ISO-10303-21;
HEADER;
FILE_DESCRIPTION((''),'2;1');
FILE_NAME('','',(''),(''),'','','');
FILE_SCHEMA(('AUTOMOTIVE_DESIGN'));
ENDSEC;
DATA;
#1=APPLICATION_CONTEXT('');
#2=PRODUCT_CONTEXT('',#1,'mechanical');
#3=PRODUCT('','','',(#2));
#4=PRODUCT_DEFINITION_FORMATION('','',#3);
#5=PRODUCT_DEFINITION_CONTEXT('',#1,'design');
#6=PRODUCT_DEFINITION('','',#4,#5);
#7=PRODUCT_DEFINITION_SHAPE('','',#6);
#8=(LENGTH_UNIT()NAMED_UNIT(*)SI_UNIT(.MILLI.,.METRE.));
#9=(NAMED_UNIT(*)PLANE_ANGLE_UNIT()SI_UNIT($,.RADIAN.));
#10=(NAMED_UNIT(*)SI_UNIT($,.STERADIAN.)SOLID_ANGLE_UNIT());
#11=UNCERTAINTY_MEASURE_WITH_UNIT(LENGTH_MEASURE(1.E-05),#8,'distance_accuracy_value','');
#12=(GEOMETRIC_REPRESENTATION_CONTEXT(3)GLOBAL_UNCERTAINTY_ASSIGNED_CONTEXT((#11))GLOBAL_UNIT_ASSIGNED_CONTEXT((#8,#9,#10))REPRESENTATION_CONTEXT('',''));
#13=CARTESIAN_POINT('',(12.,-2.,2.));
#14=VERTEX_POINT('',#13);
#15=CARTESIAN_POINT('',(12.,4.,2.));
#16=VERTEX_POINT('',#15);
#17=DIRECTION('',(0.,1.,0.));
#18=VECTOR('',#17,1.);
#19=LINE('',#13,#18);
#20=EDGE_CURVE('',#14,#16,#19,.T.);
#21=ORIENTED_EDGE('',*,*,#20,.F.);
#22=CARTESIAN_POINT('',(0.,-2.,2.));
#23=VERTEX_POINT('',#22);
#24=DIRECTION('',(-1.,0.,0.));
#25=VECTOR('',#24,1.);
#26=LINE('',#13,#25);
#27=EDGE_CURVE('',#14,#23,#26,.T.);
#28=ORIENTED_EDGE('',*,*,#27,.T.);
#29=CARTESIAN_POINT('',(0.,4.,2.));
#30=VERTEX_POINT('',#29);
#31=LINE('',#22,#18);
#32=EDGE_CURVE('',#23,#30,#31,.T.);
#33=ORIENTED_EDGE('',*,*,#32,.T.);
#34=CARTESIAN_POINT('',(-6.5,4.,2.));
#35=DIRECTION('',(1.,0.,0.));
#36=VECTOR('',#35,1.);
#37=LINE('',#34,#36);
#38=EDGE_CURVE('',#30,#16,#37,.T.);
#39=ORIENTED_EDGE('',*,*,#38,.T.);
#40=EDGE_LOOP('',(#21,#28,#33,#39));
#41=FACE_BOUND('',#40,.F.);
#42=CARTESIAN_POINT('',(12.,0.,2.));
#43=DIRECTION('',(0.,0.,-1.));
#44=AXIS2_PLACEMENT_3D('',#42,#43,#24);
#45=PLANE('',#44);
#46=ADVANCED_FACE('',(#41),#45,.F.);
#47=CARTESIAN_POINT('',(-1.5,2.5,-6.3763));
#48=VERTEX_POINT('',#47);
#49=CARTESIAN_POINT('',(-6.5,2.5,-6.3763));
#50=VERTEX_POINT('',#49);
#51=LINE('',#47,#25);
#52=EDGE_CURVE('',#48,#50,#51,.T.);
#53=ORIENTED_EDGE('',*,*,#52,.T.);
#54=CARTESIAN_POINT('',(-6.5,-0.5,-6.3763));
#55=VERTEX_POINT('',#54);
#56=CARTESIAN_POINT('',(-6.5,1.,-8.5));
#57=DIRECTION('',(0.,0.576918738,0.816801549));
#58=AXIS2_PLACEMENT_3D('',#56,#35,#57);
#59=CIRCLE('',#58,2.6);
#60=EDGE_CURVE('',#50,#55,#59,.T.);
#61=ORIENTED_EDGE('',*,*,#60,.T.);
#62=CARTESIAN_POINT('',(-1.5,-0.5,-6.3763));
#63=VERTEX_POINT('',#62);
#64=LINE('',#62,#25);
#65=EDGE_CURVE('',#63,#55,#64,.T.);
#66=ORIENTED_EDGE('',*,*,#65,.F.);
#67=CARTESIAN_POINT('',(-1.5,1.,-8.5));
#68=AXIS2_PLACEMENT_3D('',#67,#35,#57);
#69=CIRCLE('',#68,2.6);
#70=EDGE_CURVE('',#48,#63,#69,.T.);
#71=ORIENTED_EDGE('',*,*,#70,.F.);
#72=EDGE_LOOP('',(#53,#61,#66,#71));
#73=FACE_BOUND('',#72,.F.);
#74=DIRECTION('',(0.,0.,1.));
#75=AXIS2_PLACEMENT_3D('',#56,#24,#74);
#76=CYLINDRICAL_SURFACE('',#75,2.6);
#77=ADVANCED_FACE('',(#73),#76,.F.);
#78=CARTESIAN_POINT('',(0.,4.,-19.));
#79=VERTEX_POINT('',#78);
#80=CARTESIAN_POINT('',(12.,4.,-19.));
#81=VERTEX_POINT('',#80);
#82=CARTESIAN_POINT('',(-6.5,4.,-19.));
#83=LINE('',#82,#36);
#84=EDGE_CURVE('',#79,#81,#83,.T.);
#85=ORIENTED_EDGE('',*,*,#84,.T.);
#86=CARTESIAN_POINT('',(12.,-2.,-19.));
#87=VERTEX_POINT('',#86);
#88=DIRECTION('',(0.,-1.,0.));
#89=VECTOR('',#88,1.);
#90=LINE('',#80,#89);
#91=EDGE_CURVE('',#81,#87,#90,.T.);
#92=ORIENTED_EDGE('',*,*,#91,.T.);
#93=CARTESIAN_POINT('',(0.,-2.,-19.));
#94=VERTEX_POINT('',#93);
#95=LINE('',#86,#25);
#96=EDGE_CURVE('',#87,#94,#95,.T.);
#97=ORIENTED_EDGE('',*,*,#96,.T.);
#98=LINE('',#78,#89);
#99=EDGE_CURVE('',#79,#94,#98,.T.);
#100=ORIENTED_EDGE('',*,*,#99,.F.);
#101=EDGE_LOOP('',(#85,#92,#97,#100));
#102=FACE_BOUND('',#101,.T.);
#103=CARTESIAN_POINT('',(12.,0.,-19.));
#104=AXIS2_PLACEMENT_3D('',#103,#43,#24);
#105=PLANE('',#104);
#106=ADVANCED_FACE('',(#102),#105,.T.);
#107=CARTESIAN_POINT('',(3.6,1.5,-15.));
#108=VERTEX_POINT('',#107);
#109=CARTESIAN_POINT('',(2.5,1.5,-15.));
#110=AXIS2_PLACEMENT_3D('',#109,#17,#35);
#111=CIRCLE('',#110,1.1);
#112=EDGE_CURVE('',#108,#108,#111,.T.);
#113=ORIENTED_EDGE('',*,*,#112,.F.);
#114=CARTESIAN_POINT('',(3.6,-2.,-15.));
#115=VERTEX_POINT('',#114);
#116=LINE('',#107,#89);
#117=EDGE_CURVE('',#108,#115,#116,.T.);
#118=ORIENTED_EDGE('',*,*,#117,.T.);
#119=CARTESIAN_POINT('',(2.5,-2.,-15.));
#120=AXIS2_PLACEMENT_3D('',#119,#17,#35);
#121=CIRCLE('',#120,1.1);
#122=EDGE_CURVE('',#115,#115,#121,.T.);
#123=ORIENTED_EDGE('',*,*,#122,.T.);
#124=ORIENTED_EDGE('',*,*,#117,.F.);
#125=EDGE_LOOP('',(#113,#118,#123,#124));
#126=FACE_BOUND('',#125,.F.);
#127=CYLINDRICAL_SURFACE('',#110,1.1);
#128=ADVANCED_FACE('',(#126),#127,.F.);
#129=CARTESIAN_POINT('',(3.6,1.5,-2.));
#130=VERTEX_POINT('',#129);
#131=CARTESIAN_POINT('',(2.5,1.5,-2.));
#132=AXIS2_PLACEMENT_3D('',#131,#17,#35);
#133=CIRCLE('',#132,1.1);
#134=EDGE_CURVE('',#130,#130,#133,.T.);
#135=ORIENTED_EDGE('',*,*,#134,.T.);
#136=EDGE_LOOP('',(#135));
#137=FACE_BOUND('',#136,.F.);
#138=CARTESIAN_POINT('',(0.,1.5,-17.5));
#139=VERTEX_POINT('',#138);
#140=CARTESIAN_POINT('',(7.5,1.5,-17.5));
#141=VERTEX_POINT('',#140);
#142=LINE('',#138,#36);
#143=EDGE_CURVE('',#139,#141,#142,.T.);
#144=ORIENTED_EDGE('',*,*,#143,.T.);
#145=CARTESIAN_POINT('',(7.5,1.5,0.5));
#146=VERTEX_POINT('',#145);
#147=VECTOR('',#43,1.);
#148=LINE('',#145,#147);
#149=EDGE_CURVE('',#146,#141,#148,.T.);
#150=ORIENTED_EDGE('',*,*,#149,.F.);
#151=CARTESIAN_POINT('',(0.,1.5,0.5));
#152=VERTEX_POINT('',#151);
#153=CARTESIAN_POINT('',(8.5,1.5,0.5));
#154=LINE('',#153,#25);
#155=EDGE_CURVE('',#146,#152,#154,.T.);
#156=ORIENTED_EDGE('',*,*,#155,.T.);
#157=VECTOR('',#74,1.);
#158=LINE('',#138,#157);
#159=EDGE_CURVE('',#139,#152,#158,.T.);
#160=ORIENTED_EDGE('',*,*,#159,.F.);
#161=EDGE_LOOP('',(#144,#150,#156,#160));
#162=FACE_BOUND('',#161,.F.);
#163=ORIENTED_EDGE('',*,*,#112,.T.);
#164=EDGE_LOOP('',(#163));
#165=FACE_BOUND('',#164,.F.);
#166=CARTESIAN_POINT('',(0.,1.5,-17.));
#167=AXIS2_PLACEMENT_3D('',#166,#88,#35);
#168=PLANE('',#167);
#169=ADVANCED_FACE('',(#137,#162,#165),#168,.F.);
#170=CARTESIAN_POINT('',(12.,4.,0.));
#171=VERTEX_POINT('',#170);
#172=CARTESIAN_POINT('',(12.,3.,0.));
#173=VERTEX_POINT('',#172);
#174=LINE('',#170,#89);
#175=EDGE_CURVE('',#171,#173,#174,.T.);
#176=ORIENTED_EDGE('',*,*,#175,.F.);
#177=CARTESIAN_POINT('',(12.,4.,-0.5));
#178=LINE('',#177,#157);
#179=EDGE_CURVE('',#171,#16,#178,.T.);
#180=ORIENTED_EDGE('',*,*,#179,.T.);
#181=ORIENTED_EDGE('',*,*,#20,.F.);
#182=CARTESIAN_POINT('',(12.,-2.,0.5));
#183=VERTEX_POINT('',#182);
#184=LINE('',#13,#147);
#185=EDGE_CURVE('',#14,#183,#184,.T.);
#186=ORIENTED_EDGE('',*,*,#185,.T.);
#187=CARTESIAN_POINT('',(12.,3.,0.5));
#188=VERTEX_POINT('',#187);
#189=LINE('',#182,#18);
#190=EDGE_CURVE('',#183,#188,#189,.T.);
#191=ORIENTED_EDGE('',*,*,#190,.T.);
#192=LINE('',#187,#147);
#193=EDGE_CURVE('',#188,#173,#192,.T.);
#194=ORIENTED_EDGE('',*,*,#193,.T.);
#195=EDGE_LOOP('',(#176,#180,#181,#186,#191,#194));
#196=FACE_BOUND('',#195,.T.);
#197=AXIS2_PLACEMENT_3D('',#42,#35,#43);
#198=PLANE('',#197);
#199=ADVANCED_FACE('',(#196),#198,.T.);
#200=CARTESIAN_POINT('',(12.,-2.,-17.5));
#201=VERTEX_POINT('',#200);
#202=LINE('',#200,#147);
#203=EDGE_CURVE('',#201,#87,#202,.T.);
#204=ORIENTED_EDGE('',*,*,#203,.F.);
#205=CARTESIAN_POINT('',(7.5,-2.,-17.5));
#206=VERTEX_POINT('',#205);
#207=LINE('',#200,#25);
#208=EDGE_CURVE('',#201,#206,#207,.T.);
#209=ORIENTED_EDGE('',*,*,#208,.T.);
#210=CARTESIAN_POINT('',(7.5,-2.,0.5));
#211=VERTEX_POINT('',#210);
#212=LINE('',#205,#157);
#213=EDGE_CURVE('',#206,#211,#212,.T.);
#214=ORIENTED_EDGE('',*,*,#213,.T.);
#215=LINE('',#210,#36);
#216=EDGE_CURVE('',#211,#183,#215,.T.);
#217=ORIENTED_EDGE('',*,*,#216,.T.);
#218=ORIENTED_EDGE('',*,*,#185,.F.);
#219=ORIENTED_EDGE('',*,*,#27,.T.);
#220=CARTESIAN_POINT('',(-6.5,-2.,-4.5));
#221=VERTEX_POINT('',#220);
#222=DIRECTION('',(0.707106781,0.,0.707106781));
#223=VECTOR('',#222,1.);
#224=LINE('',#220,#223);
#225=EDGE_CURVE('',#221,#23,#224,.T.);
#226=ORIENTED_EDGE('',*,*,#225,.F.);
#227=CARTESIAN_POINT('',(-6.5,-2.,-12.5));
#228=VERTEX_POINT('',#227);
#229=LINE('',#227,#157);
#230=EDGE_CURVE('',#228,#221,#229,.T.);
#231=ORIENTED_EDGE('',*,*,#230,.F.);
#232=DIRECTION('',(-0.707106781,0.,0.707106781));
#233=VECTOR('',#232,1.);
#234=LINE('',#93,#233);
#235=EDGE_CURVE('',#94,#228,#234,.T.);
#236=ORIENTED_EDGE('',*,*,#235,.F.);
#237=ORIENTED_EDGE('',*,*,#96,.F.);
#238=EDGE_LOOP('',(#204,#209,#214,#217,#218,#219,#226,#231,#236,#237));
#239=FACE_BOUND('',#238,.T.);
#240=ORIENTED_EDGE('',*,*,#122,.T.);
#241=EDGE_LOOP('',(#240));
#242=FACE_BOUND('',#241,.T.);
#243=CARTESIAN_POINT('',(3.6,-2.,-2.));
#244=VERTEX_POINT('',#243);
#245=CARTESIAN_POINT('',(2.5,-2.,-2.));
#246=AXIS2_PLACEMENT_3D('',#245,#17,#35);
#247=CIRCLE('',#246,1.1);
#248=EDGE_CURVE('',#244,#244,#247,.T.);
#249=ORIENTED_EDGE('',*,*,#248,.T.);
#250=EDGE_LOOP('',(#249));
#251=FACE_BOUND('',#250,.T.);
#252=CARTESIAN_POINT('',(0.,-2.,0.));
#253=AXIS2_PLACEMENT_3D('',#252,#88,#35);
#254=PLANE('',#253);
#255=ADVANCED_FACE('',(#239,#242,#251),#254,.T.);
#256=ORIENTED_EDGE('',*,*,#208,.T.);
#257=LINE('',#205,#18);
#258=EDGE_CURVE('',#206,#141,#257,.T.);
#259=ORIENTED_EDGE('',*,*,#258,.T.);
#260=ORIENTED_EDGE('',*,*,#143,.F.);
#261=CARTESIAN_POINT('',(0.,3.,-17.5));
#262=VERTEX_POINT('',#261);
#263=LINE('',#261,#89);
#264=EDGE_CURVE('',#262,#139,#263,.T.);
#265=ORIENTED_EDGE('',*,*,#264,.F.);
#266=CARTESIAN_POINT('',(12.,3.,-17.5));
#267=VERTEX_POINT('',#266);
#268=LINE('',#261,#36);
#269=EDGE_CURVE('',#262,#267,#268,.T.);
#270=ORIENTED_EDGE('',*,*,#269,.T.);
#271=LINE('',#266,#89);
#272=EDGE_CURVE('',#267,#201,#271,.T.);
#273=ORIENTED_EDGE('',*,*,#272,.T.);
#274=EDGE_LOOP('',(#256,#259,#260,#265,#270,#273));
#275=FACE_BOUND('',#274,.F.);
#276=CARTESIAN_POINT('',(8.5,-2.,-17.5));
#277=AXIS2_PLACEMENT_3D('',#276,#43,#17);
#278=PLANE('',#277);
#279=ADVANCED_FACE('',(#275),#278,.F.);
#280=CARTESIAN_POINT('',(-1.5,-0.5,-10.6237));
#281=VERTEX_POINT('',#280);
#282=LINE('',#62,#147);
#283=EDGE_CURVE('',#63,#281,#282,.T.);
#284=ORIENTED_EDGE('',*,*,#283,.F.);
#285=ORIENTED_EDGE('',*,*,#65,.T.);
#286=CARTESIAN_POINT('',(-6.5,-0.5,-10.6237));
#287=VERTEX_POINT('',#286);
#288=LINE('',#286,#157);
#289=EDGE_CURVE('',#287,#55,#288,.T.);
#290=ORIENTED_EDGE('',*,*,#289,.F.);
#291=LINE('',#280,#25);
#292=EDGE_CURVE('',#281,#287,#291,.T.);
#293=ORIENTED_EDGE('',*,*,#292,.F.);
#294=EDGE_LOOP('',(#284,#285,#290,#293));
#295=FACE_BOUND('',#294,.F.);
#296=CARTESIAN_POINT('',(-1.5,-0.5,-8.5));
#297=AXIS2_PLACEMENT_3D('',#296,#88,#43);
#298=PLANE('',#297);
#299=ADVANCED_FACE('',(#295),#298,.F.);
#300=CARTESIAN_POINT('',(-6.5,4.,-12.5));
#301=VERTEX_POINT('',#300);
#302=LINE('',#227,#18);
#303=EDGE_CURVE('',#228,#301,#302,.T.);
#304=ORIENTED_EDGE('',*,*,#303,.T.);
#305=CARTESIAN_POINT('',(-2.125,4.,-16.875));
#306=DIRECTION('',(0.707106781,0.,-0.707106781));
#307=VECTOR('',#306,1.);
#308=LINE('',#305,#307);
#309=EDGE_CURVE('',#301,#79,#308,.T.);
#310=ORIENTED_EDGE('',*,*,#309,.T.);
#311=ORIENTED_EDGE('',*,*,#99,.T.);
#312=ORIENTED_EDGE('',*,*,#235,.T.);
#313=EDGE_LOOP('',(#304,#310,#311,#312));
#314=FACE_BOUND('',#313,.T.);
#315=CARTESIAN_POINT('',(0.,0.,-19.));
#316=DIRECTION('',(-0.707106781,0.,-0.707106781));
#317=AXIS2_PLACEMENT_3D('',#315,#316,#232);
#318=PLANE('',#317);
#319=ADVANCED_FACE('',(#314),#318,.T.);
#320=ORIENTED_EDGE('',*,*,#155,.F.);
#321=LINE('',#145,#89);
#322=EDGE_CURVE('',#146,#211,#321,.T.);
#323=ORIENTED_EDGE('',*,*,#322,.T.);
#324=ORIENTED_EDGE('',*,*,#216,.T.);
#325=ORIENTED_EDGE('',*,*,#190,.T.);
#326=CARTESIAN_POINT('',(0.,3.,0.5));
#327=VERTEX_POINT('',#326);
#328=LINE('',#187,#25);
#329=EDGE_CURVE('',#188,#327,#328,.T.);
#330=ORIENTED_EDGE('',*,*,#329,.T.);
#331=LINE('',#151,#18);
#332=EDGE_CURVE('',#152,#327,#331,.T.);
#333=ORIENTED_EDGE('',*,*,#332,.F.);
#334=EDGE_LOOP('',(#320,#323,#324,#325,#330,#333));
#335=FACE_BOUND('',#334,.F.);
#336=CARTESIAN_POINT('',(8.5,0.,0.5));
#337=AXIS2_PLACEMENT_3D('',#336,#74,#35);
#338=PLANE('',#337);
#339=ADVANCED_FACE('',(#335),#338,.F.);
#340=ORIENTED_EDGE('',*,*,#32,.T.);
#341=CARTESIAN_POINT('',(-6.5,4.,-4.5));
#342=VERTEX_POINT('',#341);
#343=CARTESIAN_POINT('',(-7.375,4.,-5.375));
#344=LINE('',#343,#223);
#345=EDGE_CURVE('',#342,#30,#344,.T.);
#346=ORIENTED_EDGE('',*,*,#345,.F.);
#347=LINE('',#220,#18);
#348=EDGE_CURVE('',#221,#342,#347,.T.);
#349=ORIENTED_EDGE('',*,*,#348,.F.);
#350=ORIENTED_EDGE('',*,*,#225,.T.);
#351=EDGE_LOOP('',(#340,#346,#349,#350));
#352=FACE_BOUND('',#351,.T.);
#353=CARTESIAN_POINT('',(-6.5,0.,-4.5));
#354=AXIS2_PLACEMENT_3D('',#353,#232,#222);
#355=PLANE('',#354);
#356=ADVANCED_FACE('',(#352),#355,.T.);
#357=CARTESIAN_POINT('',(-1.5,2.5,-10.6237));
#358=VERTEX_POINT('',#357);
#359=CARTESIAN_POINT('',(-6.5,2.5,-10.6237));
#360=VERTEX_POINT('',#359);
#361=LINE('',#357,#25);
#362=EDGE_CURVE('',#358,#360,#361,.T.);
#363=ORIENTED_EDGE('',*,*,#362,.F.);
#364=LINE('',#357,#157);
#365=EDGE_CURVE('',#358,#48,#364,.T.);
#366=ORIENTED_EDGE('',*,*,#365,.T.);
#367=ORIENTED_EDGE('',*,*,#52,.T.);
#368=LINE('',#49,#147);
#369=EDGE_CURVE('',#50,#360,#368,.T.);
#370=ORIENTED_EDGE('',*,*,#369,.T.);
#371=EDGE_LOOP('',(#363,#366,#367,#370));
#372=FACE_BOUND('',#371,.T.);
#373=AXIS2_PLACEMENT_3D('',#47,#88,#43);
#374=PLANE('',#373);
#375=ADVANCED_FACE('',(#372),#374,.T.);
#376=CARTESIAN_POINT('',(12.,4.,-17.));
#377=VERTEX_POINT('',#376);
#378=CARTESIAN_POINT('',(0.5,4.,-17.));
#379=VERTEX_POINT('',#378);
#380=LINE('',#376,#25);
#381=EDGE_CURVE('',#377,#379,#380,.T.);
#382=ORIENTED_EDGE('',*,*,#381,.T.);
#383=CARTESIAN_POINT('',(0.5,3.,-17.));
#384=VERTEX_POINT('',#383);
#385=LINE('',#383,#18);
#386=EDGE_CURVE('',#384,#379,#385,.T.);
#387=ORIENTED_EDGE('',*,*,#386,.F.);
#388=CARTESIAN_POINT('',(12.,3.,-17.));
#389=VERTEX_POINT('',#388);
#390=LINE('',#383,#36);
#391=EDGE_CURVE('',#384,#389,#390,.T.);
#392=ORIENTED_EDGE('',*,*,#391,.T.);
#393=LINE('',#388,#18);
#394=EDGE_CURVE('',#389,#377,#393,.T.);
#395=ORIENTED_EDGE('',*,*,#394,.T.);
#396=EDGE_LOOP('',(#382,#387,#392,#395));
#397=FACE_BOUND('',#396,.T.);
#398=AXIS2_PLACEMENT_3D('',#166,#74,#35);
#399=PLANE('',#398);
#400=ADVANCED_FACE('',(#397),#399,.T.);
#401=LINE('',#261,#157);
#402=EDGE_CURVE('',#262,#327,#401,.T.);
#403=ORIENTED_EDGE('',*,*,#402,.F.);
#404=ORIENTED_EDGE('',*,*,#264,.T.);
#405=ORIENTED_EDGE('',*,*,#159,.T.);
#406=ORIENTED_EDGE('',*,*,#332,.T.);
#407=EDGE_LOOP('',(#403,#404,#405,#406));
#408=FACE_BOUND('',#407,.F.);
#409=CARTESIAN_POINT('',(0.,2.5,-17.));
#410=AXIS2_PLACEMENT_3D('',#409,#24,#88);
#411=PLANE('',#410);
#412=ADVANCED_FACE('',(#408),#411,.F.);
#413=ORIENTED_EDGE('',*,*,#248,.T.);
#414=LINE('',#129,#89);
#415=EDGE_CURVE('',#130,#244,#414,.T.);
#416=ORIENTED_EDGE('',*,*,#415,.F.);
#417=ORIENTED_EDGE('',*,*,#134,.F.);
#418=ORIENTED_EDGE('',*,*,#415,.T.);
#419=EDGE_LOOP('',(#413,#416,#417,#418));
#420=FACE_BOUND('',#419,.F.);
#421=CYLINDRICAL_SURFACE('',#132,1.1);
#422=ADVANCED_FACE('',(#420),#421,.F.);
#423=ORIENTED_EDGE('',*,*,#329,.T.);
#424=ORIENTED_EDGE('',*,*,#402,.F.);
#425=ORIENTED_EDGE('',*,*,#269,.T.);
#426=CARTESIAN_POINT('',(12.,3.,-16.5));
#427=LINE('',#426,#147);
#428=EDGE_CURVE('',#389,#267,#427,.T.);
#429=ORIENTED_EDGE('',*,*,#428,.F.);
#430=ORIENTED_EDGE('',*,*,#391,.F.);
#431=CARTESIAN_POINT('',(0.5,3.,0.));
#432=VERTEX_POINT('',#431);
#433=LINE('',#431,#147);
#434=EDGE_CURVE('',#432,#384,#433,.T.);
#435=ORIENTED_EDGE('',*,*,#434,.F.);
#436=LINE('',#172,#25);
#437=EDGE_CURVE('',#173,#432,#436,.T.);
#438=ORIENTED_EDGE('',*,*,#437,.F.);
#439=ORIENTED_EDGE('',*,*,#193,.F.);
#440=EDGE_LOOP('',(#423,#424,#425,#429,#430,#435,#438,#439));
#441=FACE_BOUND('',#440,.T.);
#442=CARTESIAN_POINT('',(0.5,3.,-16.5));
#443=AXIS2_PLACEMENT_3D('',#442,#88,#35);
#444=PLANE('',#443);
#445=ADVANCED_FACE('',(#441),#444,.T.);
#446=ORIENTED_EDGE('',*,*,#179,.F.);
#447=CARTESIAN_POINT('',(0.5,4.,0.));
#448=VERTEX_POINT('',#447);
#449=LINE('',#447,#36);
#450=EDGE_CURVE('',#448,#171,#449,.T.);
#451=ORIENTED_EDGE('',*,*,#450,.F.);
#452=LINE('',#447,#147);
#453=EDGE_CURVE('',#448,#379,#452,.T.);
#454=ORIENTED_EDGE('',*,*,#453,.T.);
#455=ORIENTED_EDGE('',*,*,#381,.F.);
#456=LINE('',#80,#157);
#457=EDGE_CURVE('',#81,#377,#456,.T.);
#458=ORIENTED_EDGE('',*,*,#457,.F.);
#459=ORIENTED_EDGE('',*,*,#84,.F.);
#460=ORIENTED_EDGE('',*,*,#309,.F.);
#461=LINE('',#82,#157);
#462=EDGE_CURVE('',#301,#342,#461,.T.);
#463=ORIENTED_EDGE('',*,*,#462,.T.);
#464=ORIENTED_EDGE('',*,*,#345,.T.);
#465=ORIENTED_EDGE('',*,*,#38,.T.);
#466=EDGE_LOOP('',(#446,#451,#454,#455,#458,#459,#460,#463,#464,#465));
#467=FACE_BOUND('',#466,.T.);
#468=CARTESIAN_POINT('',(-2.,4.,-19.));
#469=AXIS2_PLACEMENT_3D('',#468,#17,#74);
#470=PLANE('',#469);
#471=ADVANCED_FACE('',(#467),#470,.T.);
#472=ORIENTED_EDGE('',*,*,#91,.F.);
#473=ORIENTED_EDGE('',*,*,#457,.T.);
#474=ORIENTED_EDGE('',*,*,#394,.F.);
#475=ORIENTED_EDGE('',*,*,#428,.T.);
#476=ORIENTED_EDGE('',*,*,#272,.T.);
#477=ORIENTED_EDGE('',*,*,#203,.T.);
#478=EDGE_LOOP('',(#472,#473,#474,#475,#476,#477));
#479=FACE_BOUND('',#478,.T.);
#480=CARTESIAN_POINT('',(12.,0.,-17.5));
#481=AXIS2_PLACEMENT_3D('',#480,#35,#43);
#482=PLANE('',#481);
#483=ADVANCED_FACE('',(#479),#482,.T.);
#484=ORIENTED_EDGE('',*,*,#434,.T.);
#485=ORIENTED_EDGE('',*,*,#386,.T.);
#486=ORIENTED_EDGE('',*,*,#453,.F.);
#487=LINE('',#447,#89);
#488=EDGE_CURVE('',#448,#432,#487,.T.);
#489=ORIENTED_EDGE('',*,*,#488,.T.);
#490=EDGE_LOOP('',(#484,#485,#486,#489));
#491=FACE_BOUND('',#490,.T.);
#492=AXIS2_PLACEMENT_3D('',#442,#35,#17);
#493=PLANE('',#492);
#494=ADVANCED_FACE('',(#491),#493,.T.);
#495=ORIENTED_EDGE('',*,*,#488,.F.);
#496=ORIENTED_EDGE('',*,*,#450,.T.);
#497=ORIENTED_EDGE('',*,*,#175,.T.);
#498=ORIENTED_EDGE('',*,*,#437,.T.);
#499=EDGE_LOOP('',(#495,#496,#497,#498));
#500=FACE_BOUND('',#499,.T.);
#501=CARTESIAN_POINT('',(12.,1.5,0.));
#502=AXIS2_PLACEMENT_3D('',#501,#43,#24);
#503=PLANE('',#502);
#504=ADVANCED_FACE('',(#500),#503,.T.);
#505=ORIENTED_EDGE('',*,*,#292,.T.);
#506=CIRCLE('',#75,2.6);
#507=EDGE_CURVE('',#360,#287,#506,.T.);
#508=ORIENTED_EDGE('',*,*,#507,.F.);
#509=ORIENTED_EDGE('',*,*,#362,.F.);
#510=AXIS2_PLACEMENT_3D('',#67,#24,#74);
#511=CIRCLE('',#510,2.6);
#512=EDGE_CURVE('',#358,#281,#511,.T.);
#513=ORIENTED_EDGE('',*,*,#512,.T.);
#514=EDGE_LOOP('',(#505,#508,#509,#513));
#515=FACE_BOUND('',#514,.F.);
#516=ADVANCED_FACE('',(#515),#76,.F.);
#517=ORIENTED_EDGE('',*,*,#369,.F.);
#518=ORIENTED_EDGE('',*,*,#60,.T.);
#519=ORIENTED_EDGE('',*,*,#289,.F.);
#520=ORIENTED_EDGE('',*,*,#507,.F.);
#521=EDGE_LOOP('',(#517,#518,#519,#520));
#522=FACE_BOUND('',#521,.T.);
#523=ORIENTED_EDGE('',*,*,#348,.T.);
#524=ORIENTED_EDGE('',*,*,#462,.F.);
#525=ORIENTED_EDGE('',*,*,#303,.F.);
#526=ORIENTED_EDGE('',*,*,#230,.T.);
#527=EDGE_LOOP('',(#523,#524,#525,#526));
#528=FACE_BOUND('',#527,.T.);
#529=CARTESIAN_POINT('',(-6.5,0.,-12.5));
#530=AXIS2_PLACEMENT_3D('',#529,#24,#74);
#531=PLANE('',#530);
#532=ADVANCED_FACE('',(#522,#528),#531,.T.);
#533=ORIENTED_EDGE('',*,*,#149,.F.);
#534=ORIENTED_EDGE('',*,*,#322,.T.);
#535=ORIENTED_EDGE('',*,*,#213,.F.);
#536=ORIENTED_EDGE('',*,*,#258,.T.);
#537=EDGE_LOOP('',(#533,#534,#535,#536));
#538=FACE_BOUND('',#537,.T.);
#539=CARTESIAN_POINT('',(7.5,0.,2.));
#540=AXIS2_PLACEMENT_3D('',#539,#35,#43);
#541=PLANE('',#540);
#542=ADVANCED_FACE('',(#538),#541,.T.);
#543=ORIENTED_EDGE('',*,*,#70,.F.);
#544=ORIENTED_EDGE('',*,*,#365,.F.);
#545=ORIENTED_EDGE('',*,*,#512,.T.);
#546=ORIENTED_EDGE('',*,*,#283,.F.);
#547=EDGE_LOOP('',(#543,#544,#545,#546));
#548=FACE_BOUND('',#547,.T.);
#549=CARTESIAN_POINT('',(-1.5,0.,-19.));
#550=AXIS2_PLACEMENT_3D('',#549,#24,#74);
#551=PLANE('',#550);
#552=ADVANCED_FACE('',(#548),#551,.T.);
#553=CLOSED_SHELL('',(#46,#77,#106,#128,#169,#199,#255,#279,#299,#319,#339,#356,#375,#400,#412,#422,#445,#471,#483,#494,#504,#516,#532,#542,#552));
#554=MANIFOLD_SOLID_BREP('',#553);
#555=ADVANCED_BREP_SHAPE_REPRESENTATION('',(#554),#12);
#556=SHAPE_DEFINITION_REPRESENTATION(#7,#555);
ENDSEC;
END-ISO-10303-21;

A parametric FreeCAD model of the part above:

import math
import FreeCAD as App
import Part
import Sketcher

V = App.Vector


def edges_at(feature, points):
    """Names of the edges that pass closest to the given points."""
    edges = feature.Shape.Edges
    near = lambda p: min(range(len(edges)), key=lambda i: edges[i].distToShape(Part.Vertex(*p))[0])
    return sorted({f"Edge{near(p) + 1}" for p in points})

doc = App.newDocument("Part")
body = doc.addObject("PartDesign::Body", "Body")

# Sketch on XZ plane
sketch1 = doc.addObject("Sketcher::SketchObject", "Sketch")
body.addObject(sketch1)
sketch1.AttachmentSupport = (doc.XZ_Plane, [""])
sketch1.MapMode = "FlatFace"
sketch1.addGeometry([
    Part.LineSegment(V(12, -19, 0), V(-2, -19, 0)),
    Part.LineSegment(V(-2, -19, 0), V(-2, 2, 0)),
    Part.LineSegment(V(-2, 2, 0), V(12, 2, 0)),
    Part.LineSegment(V(12, 2, 0), V(12, -19, 0)),
], False)
sketch1.addConstraint([
    Sketcher.Constraint("Coincident", 0, 2, 1, 1),
    Sketcher.Constraint("Coincident", 1, 2, 2, 1),
    Sketcher.Constraint("Coincident", 2, 2, 3, 1),
    Sketcher.Constraint("Coincident", 3, 2, 0, 1),
    Sketcher.Constraint("Horizontal", 0),
    Sketcher.Constraint("Vertical", 1),
    Sketcher.Constraint("Horizontal", 2),
    Sketcher.Constraint("Vertical", 3),
    Sketcher.Constraint("DistanceY", 1, 1, 1, 2, 21.0),
    Sketcher.Constraint("DistanceX", 0, 2, -1, 1, 2.0),
    Sketcher.Constraint("DistanceY", -1, 1, 1, 2, 2.0),
    Sketcher.Constraint("DistanceX", -1, 1, 2, 2, 12.0),
])
pad1 = doc.addObject("PartDesign::Pad", "Pad")
body.addObject(pad1)
pad1.Profile = sketch1
pad1.Length = 4
pad1.Reversed = True

# Sketch on XZ plane
sketch2 = doc.addObject("Sketcher::SketchObject", "Sketch001")
body.addObject(sketch2)
sketch2.AttachmentSupport = (doc.XZ_Plane, [""])
sketch2.MapMode = "FlatFace"
sketch2.AttachmentOffset = App.Placement(V(0, 0, -4), App.Rotation())
sketch2.addGeometry([
    Part.LineSegment(V(0, 0, 0), V(12, 0, 0)),
    Part.LineSegment(V(12, 0, 0), V(12, -17, 0)),
    Part.LineSegment(V(12, -17, 0), V(0, -17, 0)),
    Part.LineSegment(V(0, -17, 0), V(0, 0, 0)),
], False)
sketch2.addConstraint([
    Sketcher.Constraint("Coincident", 0, 2, 1, 1),
    Sketcher.Constraint("Coincident", 1, 2, 2, 1),
    Sketcher.Constraint("Coincident", 2, 2, 3, 1),
    Sketcher.Constraint("Coincident", 3, 2, 0, 1),
    Sketcher.Constraint("Horizontal", 0),
    Sketcher.Constraint("Vertical", 1),
    Sketcher.Constraint("Horizontal", 2),
    Sketcher.Constraint("Vertical", 3),
    Sketcher.Constraint("Coincident", 3, 2, -1, 1),
    Sketcher.Constraint("DistanceY", 1, 2, 1, 1, 17.0),
    Sketcher.Constraint("DistanceX", 0, 1, 0, 2, 12.0),
])
pocket1 = doc.addObject("PartDesign::Pocket", "Pocket")
body.addObject(pocket1)
pocket1.Profile = sketch2
pocket1.Length = 2.5
pocket1.Reversed = True

# Sketch on YZ plane
sketch3 = doc.addObject("Sketcher::SketchObject", "Sketch002")
body.addObject(sketch3)
sketch3.AttachmentSupport = (doc.YZ_Plane, [""])
sketch3.MapMode = "FlatFace"
sketch3.addGeometry([
    Part.LineSegment(V(2.5, -17, 0), V(4, -17, 0)),
    Part.LineSegment(V(4, -17, 0), V(4, 0, 0)),
    Part.LineSegment(V(4, 0, 0), V(2.5, 0, 0)),
    Part.LineSegment(V(2.5, 0, 0), V(2.5, -17, 0)),
], False)
sketch3.addConstraint([
    Sketcher.Constraint("Coincident", 0, 2, 1, 1),
    Sketcher.Constraint("Coincident", 1, 2, 2, 1),
    Sketcher.Constraint("Coincident", 2, 2, 3, 1),
    Sketcher.Constraint("Coincident", 3, 2, 0, 1),
    Sketcher.Constraint("Horizontal", 0),
    Sketcher.Constraint("Vertical", 1),
    Sketcher.Constraint("Horizontal", 2),
    Sketcher.Constraint("Vertical", 3),
    Sketcher.Constraint("PointOnObject", 1, 2, -1),
    Sketcher.Constraint("DistanceX", 0, 1, 0, 2, 1.5),
    Sketcher.Constraint("DistanceY", 1, 1, 1, 2, 17.0),
    Sketcher.Constraint("DistanceX", -1, 1, 0, 2, 4.0),
])
pad2 = doc.addObject("PartDesign::Pad", "Pad001")
body.addObject(pad2)
pad2.Profile = sketch3
pad2.Length = 0.5

# Sketch on XY plane
sketch4 = doc.addObject("Sketcher::SketchObject", "Sketch003")
body.addObject(sketch4)
sketch4.AttachmentSupport = (doc.XY_Plane, [""])
sketch4.MapMode = "FlatFace"
sketch4.AttachmentOffset = App.Placement(V(0, 0, -17), App.Rotation())
sketch4.addGeometry([
    Part.LineSegment(V(12, 2.5, 0), V(12, 4, 0)),
    Part.LineSegment(V(12, 4, 0), V(0.5, 4, 0)),
    Part.LineSegment(V(0.5, 4, 0), V(0.5, 2.5, 0)),
    Part.LineSegment(V(0.5, 2.5, 0), V(12, 2.5, 0)),
], False)
sketch4.addConstraint([
    Sketcher.Constraint("Coincident", 0, 2, 1, 1),
    Sketcher.Constraint("Coincident", 1, 2, 2, 1),
    Sketcher.Constraint("Coincident", 2, 2, 3, 1),
    Sketcher.Constraint("Coincident", 3, 2, 0, 1),
    Sketcher.Constraint("Vertical", 0),
    Sketcher.Constraint("Horizontal", 1),
    Sketcher.Constraint("Vertical", 2),
    Sketcher.Constraint("Horizontal", 3),
    Sketcher.Constraint("DistanceY", 0, 1, 0, 2, 1.5),
    Sketcher.Constraint("DistanceX", 1, 2, 1, 1, 11.5),
    Sketcher.Constraint("DistanceX", -1, 1, 0, 2, 12.0),
    Sketcher.Constraint("DistanceY", -1, 1, 0, 2, 4.0),
])
pad3 = doc.addObject("PartDesign::Pad", "Pad002")
body.addObject(pad3)
pad3.Profile = sketch4
pad3.Length = 0.5

# Sketch on XY plane
sketch5 = doc.addObject("Sketcher::SketchObject", "Sketch004")
body.addObject(sketch5)
sketch5.AttachmentSupport = (doc.XY_Plane, [""])
sketch5.MapMode = "FlatFace"
sketch5.addGeometry([
    Part.LineSegment(V(0.5, 2.5, 0), V(0.5, 4, 0)),
    Part.LineSegment(V(0.5, 4, 0), V(12, 4, 0)),
    Part.LineSegment(V(12, 4, 0), V(12, 2.5, 0)),
    Part.LineSegment(V(12, 2.5, 0), V(0.5, 2.5, 0)),
], False)
sketch5.addConstraint([
    Sketcher.Constraint("Coincident", 0, 2, 1, 1),
    Sketcher.Constraint("Coincident", 1, 2, 2, 1),
    Sketcher.Constraint("Coincident", 2, 2, 3, 1),
    Sketcher.Constraint("Coincident", 3, 2, 0, 1),
    Sketcher.Constraint("Vertical", 0),
    Sketcher.Constraint("Horizontal", 1),
    Sketcher.Constraint("Vertical", 2),
    Sketcher.Constraint("Horizontal", 3),
    Sketcher.Constraint("DistanceY", 0, 1, 0, 2, 1.5),
    Sketcher.Constraint("DistanceX", 1, 1, 1, 2, 11.5),
    Sketcher.Constraint("DistanceY", -1, 1, 0, 2, 4.0),
    Sketcher.Constraint("DistanceX", -1, 1, 1, 2, 12.0),
])
pad4 = doc.addObject("PartDesign::Pad", "Pad003")
body.addObject(pad4)
pad4.Profile = sketch5
pad4.Length = 0.5
pad4.Reversed = True

# Sketch on YZ plane
sketch6 = doc.addObject("Sketcher::SketchObject", "Sketch005")
body.addObject(sketch6)
sketch6.AttachmentSupport = (doc.YZ_Plane, [""])
sketch6.MapMode = "FlatFace"
sketch6.AttachmentOffset = App.Placement(V(0, 0, 12), App.Rotation())
sketch6.addGeometry([
    Part.LineSegment(V(0, -17, 0), V(1.5, -17, 0)),
    Part.LineSegment(V(1.5, -17, 0), V(1.5, 0, 0)),
    Part.LineSegment(V(1.5, 0, 0), V(0, 0, 0)),
    Part.LineSegment(V(0, 0, 0), V(0, -17, 0)),
], False)
sketch6.addConstraint([
    Sketcher.Constraint("Coincident", 0, 2, 1, 1),
    Sketcher.Constraint("Coincident", 1, 2, 2, 1),
    Sketcher.Constraint("Coincident", 2, 2, 3, 1),
    Sketcher.Constraint("Coincident", 3, 2, 0, 1),
    Sketcher.Constraint("Horizontal", 0),
    Sketcher.Constraint("Vertical", 1),
    Sketcher.Constraint("Horizontal", 2),
    Sketcher.Constraint("Vertical", 3),
    Sketcher.Constraint("Coincident", 2, 2, -1, 1),
    Sketcher.Constraint("DistanceY", 1, 1, 1, 2, 17.0),
    Sketcher.Constraint("DistanceX", 0, 1, 0, 2, 1.5),
])
pocket2 = doc.addObject("PartDesign::Pocket", "Pocket001")
body.addObject(pocket2)
pocket2.Profile = sketch6
pocket2.Length = 3.5

# Sketch on YZ plane
sketch7 = doc.addObject("Sketcher::SketchObject", "Sketch006")
body.addObject(sketch7)
sketch7.AttachmentSupport = (doc.YZ_Plane, [""])
sketch7.MapMode = "FlatFace"
sketch7.AttachmentOffset = App.Placement(V(0, 0, -2), App.Rotation())
sketch7.addGeometry([
    Part.LineSegment(V(4, -19, 0), V(0, -19, 0)),
    Part.LineSegment(V(0, -19, 0), V(0, 2, 0)),
    Part.LineSegment(V(0, 2, 0), V(4, 2, 0)),
    Part.LineSegment(V(4, 2, 0), V(4, -19, 0)),
], False)
sketch7.addConstraint([
    Sketcher.Constraint("Coincident", 0, 2, 1, 1),
    Sketcher.Constraint("Coincident", 1, 2, 2, 1),
    Sketcher.Constraint("Coincident", 2, 2, 3, 1),
    Sketcher.Constraint("Coincident", 3, 2, 0, 1),
    Sketcher.Constraint("Horizontal", 0),
    Sketcher.Constraint("Vertical", 1),
    Sketcher.Constraint("Horizontal", 2),
    Sketcher.Constraint("Vertical", 3),
    Sketcher.Constraint("PointOnObject", 0, 2, -2),
    Sketcher.Constraint("DistanceX", 0, 2, 0, 1, 4.0),
    Sketcher.Constraint("DistanceY", 1, 1, 1, 2, 21.0),
    Sketcher.Constraint("DistanceY", 0, 2, -1, 1, 19.0),
])
pad5 = doc.addObject("PartDesign::Pad", "Pad004")
body.addObject(pad5)
pad5.Profile = sketch7
pad5.Length = 4.5
pad5.Reversed = True
doc.recompute()

chamfer = doc.addObject("PartDesign::Chamfer", "Chamfer")
body.addObject(chamfer)
chamfer.Base = (pad5, edges_at(pad5, [(-6.5, 2, 2)]))
chamfer.Size = 6.5

# Sketch on XY plane
sketch8 = doc.addObject("Sketcher::SketchObject", "Sketch007")
body.addObject(sketch8)
sketch8.AttachmentSupport = (doc.XY_Plane, [""])
sketch8.MapMode = "FlatFace"
sketch8.AttachmentOffset = App.Placement(V(0, 0, -17), App.Rotation())
sketch8.addGeometry([
    Part.LineSegment(V(12, 0, 0), V(12, 2.5, 0)),  # 0
    Part.LineSegment(V(12, 2.5, 0), V(0, 2.5, 0)),  # 1
    Part.LineSegment(V(0, 2.5, 0), V(0, 1.5, 0)),  # 2
    Part.LineSegment(V(0, 1.5, 0), V(8.5, 1.5, 0)),  # 3
    Part.LineSegment(V(8.5, 1.5, 0), V(8.5, 0, 0)),  # 4
    Part.LineSegment(V(8.5, 0, 0), V(12, 0, 0)),  # 5
], False)
sketch8.addConstraint([
    Sketcher.Constraint("Coincident", 0, 2, 1, 1),
    Sketcher.Constraint("Coincident", 1, 2, 2, 1),
    Sketcher.Constraint("Coincident", 2, 2, 3, 1),
    Sketcher.Constraint("Coincident", 3, 2, 4, 1),
    Sketcher.Constraint("Coincident", 4, 2, 5, 1),
    Sketcher.Constraint("Coincident", 5, 2, 0, 1),
    Sketcher.Constraint("Vertical", 0),
    Sketcher.Constraint("Horizontal", 1),
    Sketcher.Constraint("Vertical", 2),
    Sketcher.Constraint("Horizontal", 3),
    Sketcher.Constraint("Vertical", 4),
    Sketcher.Constraint("Horizontal", 5),
    Sketcher.Constraint("PointOnObject", 1, 2, -2),
    Sketcher.Constraint("PointOnObject", 4, 2, -1),
    Sketcher.Constraint("DistanceX", 1, 2, 1, 1, 12.0),
    Sketcher.Constraint("DistanceY", 2, 2, 2, 1, 1.0),
    Sketcher.Constraint("DistanceX", 3, 1, 3, 2, 8.5),
    Sketcher.Constraint("DistanceY", 0, 1, 0, 2, 2.5),
])
pocket3 = doc.addObject("PartDesign::Pocket", "Pocket002")
body.addObject(pocket3)
pocket3.Profile = sketch8
pocket3.Length = 0.5

# Sketch on XY plane
sketch9 = doc.addObject("Sketcher::SketchObject", "Sketch008")
body.addObject(sketch9)
sketch9.AttachmentSupport = (doc.XY_Plane, [""])
sketch9.MapMode = "FlatFace"
sketch9.addGeometry([
    Part.LineSegment(V(0, 1.5, 0), V(0, 2.5, 0)),  # 0
    Part.LineSegment(V(0, 2.5, 0), V(12, 2.5, 0)),  # 1
    Part.LineSegment(V(12, 2.5, 0), V(12, 0, 0)),  # 2
    Part.LineSegment(V(12, 0, 0), V(8.5, 0, 0)),  # 3
    Part.LineSegment(V(8.5, 0, 0), V(8.5, 1.5, 0)),  # 4
    Part.LineSegment(V(8.5, 1.5, 0), V(0, 1.5, 0)),  # 5
], False)
sketch9.addConstraint([
    Sketcher.Constraint("Coincident", 0, 2, 1, 1),
    Sketcher.Constraint("Coincident", 1, 2, 2, 1),
    Sketcher.Constraint("Coincident", 2, 2, 3, 1),
    Sketcher.Constraint("Coincident", 3, 2, 4, 1),
    Sketcher.Constraint("Coincident", 4, 2, 5, 1),
    Sketcher.Constraint("Coincident", 5, 2, 0, 1),
    Sketcher.Constraint("Vertical", 0),
    Sketcher.Constraint("Horizontal", 1),
    Sketcher.Constraint("Vertical", 2),
    Sketcher.Constraint("Horizontal", 3),
    Sketcher.Constraint("Vertical", 4),
    Sketcher.Constraint("Horizontal", 5),
    Sketcher.Constraint("PointOnObject", 0, 2, -2),
    Sketcher.Constraint("PointOnObject", 2, 2, -1),
    Sketcher.Constraint("DistanceX", 1, 1, 1, 2, 12.0),
    Sketcher.Constraint("DistanceY", 0, 1, 0, 2, 1.0),
    Sketcher.Constraint("DistanceX", 3, 2, 3, 1, 3.5),
    Sketcher.Constraint("DistanceY", 2, 2, 2, 1, 2.5),
])
pocket4 = doc.addObject("PartDesign::Pocket", "Pocket003")
body.addObject(pocket4)
pocket4.Profile = sketch9
pocket4.Length = 0.5
pocket4.Reversed = True

# Sketch on XZ plane
sketch10 = doc.addObject("Sketcher::SketchObject", "Sketch009")
body.addObject(sketch10)
sketch10.AttachmentSupport = (doc.XZ_Plane, [""])
sketch10.MapMode = "FlatFace"
sketch10.AttachmentOffset = App.Placement(V(0, 0, -2.5), App.Rotation())
sketch10.addGeometry([
    Part.LineSegment(V(0, 0.5, 0), V(0, -17.5, 0)),  # 0
    Part.LineSegment(V(0, -17.5, 0), V(12, -17.5, 0)),  # 1
    Part.LineSegment(V(12, -17.5, 0), V(12, -16.5, 0)),  # 2
    Part.LineSegment(V(12, -16.5, 0), V(0.5, -16.5, 0)),  # 3
    Part.LineSegment(V(0.5, -16.5, 0), V(0.5, -0.5, 0)),  # 4
    Part.LineSegment(V(0.5, -0.5, 0), V(12, -0.5, 0)),  # 5
    Part.LineSegment(V(12, -0.5, 0), V(12, 0.5, 0)),  # 6
    Part.LineSegment(V(12, 0.5, 0), V(0, 0.5, 0)),  # 7
], False)
sketch10.addConstraint([
    Sketcher.Constraint("Coincident", 0, 2, 1, 1),
    Sketcher.Constraint("Coincident", 1, 2, 2, 1),
    Sketcher.Constraint("Coincident", 2, 2, 3, 1),
    Sketcher.Constraint("Coincident", 3, 2, 4, 1),
    Sketcher.Constraint("Coincident", 4, 2, 5, 1),
    Sketcher.Constraint("Coincident", 5, 2, 6, 1),
    Sketcher.Constraint("Coincident", 6, 2, 7, 1),
    Sketcher.Constraint("Coincident", 7, 2, 0, 1),
    Sketcher.Constraint("Vertical", 0),
    Sketcher.Constraint("Horizontal", 1),
    Sketcher.Constraint("Vertical", 2),
    Sketcher.Constraint("Horizontal", 3),
    Sketcher.Constraint("Vertical", 4),
    Sketcher.Constraint("Horizontal", 5),
    Sketcher.Constraint("Vertical", 6),
    Sketcher.Constraint("Horizontal", 7),
    Sketcher.Constraint("PointOnObject", 0, 2, -2),
    Sketcher.Constraint("Vertical", 2, 2, 5, 2),
    Sketcher.Constraint("Equal", 2, 6),
    Sketcher.Constraint("DistanceX", 1, 1, 1, 2, 12.0),
    Sketcher.Constraint("DistanceY", 0, 2, 0, 1, 18.0),
    Sketcher.Constraint("DistanceY", 2, 1, 2, 2, 1.0),
    Sketcher.Constraint("DistanceX", 3, 2, 3, 1, 11.5),
    Sketcher.Constraint("DistanceY", 0, 2, -1, 1, 17.5),
])
pocket5 = doc.addObject("PartDesign::Pocket", "Pocket004")
body.addObject(pocket5)
pocket5.Profile = sketch10
pocket5.Length = 0.5
doc.recompute()

chamfer2 = doc.addObject("PartDesign::Chamfer", "Chamfer001")
body.addObject(chamfer2)
chamfer2.Base = (pocket5, edges_at(pocket5, [(-6.5, 2, -19)]))
chamfer2.Size = 6.5

# Sketch on XZ plane
sketch11 = doc.addObject("Sketcher::SketchObject", "Sketch010")
body.addObject(sketch11)
sketch11.AttachmentSupport = (doc.XZ_Plane, [""])
sketch11.MapMode = "FlatFace"
sketch11.addGeometry([
    Part.LineSegment(V(-6.5, -12.5, 0), V(0, -19, 0)),  # 0
    Part.LineSegment(V(0, -19, 0), V(12, -19, 0)),  # 1
    Part.LineSegment(V(12, -19, 0), V(12, -17.5, 0)),  # 2
    Part.LineSegment(V(12, -17.5, 0), V(8.5, -17.5, 0)),  # 3
    Part.LineSegment(V(8.5, -17.5, 0), V(8.5, 0.5, 0)),  # 4
    Part.LineSegment(V(8.5, 0.5, 0), V(12, 0.5, 0)),  # 5
    Part.LineSegment(V(12, 0.5, 0), V(12, 2, 0)),  # 6
    Part.LineSegment(V(12, 2, 0), V(0, 2, 0)),  # 7
    Part.LineSegment(V(0, 2, 0), V(-6.5, -4.5, 0)),  # 8
    Part.LineSegment(V(-6.5, -4.5, 0), V(-6.5, -12.5, 0)),  # 9
], False)
sketch11.addConstraint([
    Sketcher.Constraint("Coincident", 0, 2, 1, 1),
    Sketcher.Constraint("Coincident", 1, 2, 2, 1),
    Sketcher.Constraint("Coincident", 2, 2, 3, 1),
    Sketcher.Constraint("Coincident", 3, 2, 4, 1),
    Sketcher.Constraint("Coincident", 4, 2, 5, 1),
    Sketcher.Constraint("Coincident", 5, 2, 6, 1),
    Sketcher.Constraint("Coincident", 6, 2, 7, 1),
    Sketcher.Constraint("Coincident", 7, 2, 8, 1),
    Sketcher.Constraint("Coincident", 8, 2, 9, 1),
    Sketcher.Constraint("Coincident", 9, 2, 0, 1),
    Sketcher.Constraint("Horizontal", 1),
    Sketcher.Constraint("Vertical", 2),
    Sketcher.Constraint("Horizontal", 3),
    Sketcher.Constraint("Vertical", 4),
    Sketcher.Constraint("Horizontal", 5),
    Sketcher.Constraint("Vertical", 6),
    Sketcher.Constraint("Horizontal", 7),
    Sketcher.Constraint("Vertical", 9),
    Sketcher.Constraint("PointOnObject", 0, 2, -2),
    Sketcher.Constraint("PointOnObject", 7, 2, -2),
    Sketcher.Constraint("Perpendicular", 0, 8),
    Sketcher.Constraint("Vertical", 2, 2, 5, 2),
    Sketcher.Constraint("Equal", 2, 6),
    Sketcher.Constraint("Equal", 0, 8),
    Sketcher.Constraint("DistanceX", 1, 1, 1, 2, 12.0),
    Sketcher.Constraint("DistanceY", 4, 1, 4, 2, 18.0),
    Sketcher.Constraint("DistanceY", 9, 2, 9, 1, 8.0),
    Sketcher.Constraint("DistanceX", 3, 2, 3, 1, 3.5),
    Sketcher.Constraint("DistanceY", 2, 1, 2, 2, 1.5),
    Sketcher.Constraint("DistanceY", 0, 2, -1, 1, 19.0),
])
pad6 = doc.addObject("PartDesign::Pad", "Pad005")
body.addObject(pad6)
pad6.Profile = sketch11
pad6.Length = 2

# Sketch on XY plane
sketch12 = doc.addObject("Sketcher::SketchObject", "Sketch011")
body.addObject(sketch12)
sketch12.AttachmentSupport = (doc.XY_Plane, [""])
sketch12.MapMode = "FlatFace"
sketch12.AttachmentOffset = App.Placement(V(0, 0, -16.5), App.Rotation())
sketch12.addGeometry([
    Part.LineSegment(V(0.5, 4, 0), V(0.5, 3, 0)),
    Part.LineSegment(V(0.5, 3, 0), V(12, 3, 0)),
    Part.LineSegment(V(12, 3, 0), V(12, 4, 0)),
    Part.LineSegment(V(12, 4, 0), V(0.5, 4, 0)),
], False)
sketch12.addConstraint([
    Sketcher.Constraint("Coincident", 0, 2, 1, 1),
    Sketcher.Constraint("Coincident", 1, 2, 2, 1),
    Sketcher.Constraint("Coincident", 2, 2, 3, 1),
    Sketcher.Constraint("Coincident", 3, 2, 0, 1),
    Sketcher.Constraint("Vertical", 0),
    Sketcher.Constraint("Horizontal", 1),
    Sketcher.Constraint("Vertical", 2),
    Sketcher.Constraint("Horizontal", 3),
    Sketcher.Constraint("DistanceY", 0, 2, 0, 1, 1.0),
    Sketcher.Constraint("DistanceX", 1, 1, 1, 2, 11.5),
    Sketcher.Constraint("DistanceY", -1, 1, 0, 2, 3.0),
    Sketcher.Constraint("DistanceX", -1, 1, 1, 2, 12.0),
])
pocket6 = doc.addObject("PartDesign::Pocket", "Pocket005")
body.addObject(pocket6)
pocket6.Profile = sketch12
pocket6.Length = 0.5

# Sketch on XY plane
sketch13 = doc.addObject("Sketcher::SketchObject", "Sketch012")
body.addObject(sketch13)
sketch13.AttachmentSupport = (doc.XY_Plane, [""])
sketch13.MapMode = "FlatFace"
sketch13.AttachmentOffset = App.Placement(V(0, 0, -0.5), App.Rotation())
sketch13.addGeometry([
    Part.LineSegment(V(12, 4, 0), V(12, 3, 0)),
    Part.LineSegment(V(12, 3, 0), V(0.5, 3, 0)),
    Part.LineSegment(V(0.5, 3, 0), V(0.5, 4, 0)),
    Part.LineSegment(V(0.5, 4, 0), V(12, 4, 0)),
], False)
sketch13.addConstraint([
    Sketcher.Constraint("Coincident", 0, 2, 1, 1),
    Sketcher.Constraint("Coincident", 1, 2, 2, 1),
    Sketcher.Constraint("Coincident", 2, 2, 3, 1),
    Sketcher.Constraint("Coincident", 3, 2, 0, 1),
    Sketcher.Constraint("Vertical", 0),
    Sketcher.Constraint("Horizontal", 1),
    Sketcher.Constraint("Vertical", 2),
    Sketcher.Constraint("Horizontal", 3),
    Sketcher.Constraint("DistanceY", 0, 2, 0, 1, 1.0),
    Sketcher.Constraint("DistanceX", 1, 2, 1, 1, 11.5),
    Sketcher.Constraint("DistanceX", -1, 1, 0, 2, 12.0),
    Sketcher.Constraint("DistanceY", -1, 1, 0, 2, 3.0),
])
pocket7 = doc.addObject("PartDesign::Pocket", "Pocket006")
body.addObject(pocket7)
pocket7.Profile = sketch13
pocket7.Length = 0.5
pocket7.Reversed = True

# Sketch on YZ plane
sketch14 = doc.addObject("Sketcher::SketchObject", "Sketch013")
body.addObject(sketch14)
sketch14.AttachmentSupport = (doc.YZ_Plane, [""])
sketch14.MapMode = "FlatFace"
sketch14.AttachmentOffset = App.Placement(V(0, 0, -6.5), App.Rotation())
sketch14.addGeometry(Part.Circle(V(1, -8.5, 0), V(0, 0, 1), 2.6), False)
sketch14.addConstraint([
    Sketcher.Constraint("Diameter", 0, 5.2),
    Sketcher.Constraint("DistanceX", -1, 1, 0, 3, 1.0),
    Sketcher.Constraint("DistanceY", 0, 3, -1, 1, 8.5),
])
pocket8 = doc.addObject("PartDesign::Pocket", "Pocket007")
body.addObject(pocket8)
pocket8.Profile = sketch14
pocket8.Length = 5
pocket8.Reversed = True

# Sketch on YZ plane
sketch15 = doc.addObject("Sketcher::SketchObject", "Sketch014")
body.addObject(sketch15)
sketch15.AttachmentSupport = (doc.YZ_Plane, [""])
sketch15.MapMode = "FlatFace"
sketch15.AttachmentOffset = App.Placement(V(0, 0, -1.5), App.Rotation())
sketch15.addGeometry([
    Part.LineSegment(V(2.5, -10.6, 0), V(2.5, -6.4, 0)),
    Part.ArcOfCircle(Part.Circle(V(1, -8.5, 0), V(0, 0, 1), 2.6), math.radians(-55), math.radians(55)),
    Part.ArcOfCircle(Part.Circle(V(1, -8.5, 0), V(0, 0, 1), 2.6), math.radians(125), math.radians(235)),
    Part.LineSegment(V(-0.5, -10.6, 0), V(-0.5, -6.4, 0)),
], False)
sketch15.addConstraint([
    Sketcher.Constraint("Coincident", 0, 1, 1, 1),
    Sketcher.Constraint("Coincident", 1, 2, 0, 2),
    Sketcher.Constraint("Coincident", 2, 1, 3, 2),
    Sketcher.Constraint("Coincident", 3, 1, 2, 2),
    Sketcher.Constraint("Vertical", 0),
    Sketcher.Constraint("Vertical", 3),
    Sketcher.Constraint("Coincident", 2, 3, 1, 3),
    Sketcher.Constraint("Equal", 1, 2),
    Sketcher.Constraint("Horizontal", 1, 2, 2, 1),
    Sketcher.Constraint("Radius", 1, 2.6),
    Sketcher.Constraint("DistanceX", 1, 3, 0, 1, 1.5),
    Sketcher.Constraint("DistanceX", -1, 1, 1, 3, 1.0),
    Sketcher.Constraint("DistanceY", 1, 3, -1, 1, 8.5),
])
pad7 = doc.addObject("PartDesign::Pad", "Pad006")
body.addObject(pad7)
pad7.Profile = sketch15
pad7.Length = 5
pad7.Reversed = True

# Sketch on XZ plane
sketch16 = doc.addObject("Sketcher::SketchObject", "Sketch015")
body.addObject(sketch16)
sketch16.AttachmentSupport = (doc.XZ_Plane, [""])
sketch16.MapMode = "FlatFace"
sketch16.AttachmentOffset = App.Placement(V(0, 0, -1.5), App.Rotation())
sketch16.addGeometry([
    Part.Circle(V(2.5, -2, 0), V(0, 0, 1), 1.1),
    Part.Circle(V(2.5, -15, 0), V(0, 0, 1), 1.1),
], False)
sketch16.addConstraint([
    Sketcher.Constraint("Equal", 0, 1),
    Sketcher.Constraint("Vertical", 0, 3, 1, 3),
    Sketcher.Constraint("Diameter", 0, 2.2),
    Sketcher.Constraint("DistanceX", -1, 1, 0, 3, 2.5),
    Sketcher.Constraint("DistanceY", 0, 3, -1, 1, 2.0),
    Sketcher.Constraint("DistanceY", 1, 3, -1, 1, 15.0),
])
pocket9 = doc.addObject("PartDesign::Pocket", "Pocket008")
body.addObject(pocket9)
pocket9.Profile = sketch16
pocket9.Length = 3.5
pocket9.Reversed = True

# Sketch on YZ plane
sketch17 = doc.addObject("Sketcher::SketchObject", "Sketch016")
body.addObject(sketch17)
sketch17.AttachmentSupport = (doc.YZ_Plane, [""])
sketch17.MapMode = "FlatFace"
sketch17.AttachmentOffset = App.Placement(V(0, 0, 8.5), App.Rotation())
sketch17.addGeometry([
    Part.LineSegment(V(-2, 0.5, 0), V(-2, -17.5, 0)),
    Part.LineSegment(V(-2, -17.5, 0), V(1.5, -17.5, 0)),
    Part.LineSegment(V(1.5, -17.5, 0), V(1.5, 0.5, 0)),
    Part.LineSegment(V(1.5, 0.5, 0), V(-2, 0.5, 0)),
], False)
sketch17.addConstraint([
    Sketcher.Constraint("Coincident", 0, 2, 1, 1),
    Sketcher.Constraint("Coincident", 1, 2, 2, 1),
    Sketcher.Constraint("Coincident", 2, 2, 3, 1),
    Sketcher.Constraint("Coincident", 3, 2, 0, 1),
    Sketcher.Constraint("Vertical", 0),
    Sketcher.Constraint("Horizontal", 1),
    Sketcher.Constraint("Vertical", 2),
    Sketcher.Constraint("Horizontal", 3),
    Sketcher.Constraint("DistanceY", 0, 2, 0, 1, 18.0),
    Sketcher.Constraint("DistanceX", 1, 1, 1, 2, 3.5),
    Sketcher.Constraint("DistanceX", 0, 2, -1, 1, 2.0),
    Sketcher.Constraint("DistanceY", 0, 2, -1, 1, 17.5),
])
pocket10 = doc.addObject("PartDesign::Pocket", "Pocket009")
body.addObject(pocket10)
pocket10.Profile = sketch17
pocket10.Length = 1

doc.recompute()
